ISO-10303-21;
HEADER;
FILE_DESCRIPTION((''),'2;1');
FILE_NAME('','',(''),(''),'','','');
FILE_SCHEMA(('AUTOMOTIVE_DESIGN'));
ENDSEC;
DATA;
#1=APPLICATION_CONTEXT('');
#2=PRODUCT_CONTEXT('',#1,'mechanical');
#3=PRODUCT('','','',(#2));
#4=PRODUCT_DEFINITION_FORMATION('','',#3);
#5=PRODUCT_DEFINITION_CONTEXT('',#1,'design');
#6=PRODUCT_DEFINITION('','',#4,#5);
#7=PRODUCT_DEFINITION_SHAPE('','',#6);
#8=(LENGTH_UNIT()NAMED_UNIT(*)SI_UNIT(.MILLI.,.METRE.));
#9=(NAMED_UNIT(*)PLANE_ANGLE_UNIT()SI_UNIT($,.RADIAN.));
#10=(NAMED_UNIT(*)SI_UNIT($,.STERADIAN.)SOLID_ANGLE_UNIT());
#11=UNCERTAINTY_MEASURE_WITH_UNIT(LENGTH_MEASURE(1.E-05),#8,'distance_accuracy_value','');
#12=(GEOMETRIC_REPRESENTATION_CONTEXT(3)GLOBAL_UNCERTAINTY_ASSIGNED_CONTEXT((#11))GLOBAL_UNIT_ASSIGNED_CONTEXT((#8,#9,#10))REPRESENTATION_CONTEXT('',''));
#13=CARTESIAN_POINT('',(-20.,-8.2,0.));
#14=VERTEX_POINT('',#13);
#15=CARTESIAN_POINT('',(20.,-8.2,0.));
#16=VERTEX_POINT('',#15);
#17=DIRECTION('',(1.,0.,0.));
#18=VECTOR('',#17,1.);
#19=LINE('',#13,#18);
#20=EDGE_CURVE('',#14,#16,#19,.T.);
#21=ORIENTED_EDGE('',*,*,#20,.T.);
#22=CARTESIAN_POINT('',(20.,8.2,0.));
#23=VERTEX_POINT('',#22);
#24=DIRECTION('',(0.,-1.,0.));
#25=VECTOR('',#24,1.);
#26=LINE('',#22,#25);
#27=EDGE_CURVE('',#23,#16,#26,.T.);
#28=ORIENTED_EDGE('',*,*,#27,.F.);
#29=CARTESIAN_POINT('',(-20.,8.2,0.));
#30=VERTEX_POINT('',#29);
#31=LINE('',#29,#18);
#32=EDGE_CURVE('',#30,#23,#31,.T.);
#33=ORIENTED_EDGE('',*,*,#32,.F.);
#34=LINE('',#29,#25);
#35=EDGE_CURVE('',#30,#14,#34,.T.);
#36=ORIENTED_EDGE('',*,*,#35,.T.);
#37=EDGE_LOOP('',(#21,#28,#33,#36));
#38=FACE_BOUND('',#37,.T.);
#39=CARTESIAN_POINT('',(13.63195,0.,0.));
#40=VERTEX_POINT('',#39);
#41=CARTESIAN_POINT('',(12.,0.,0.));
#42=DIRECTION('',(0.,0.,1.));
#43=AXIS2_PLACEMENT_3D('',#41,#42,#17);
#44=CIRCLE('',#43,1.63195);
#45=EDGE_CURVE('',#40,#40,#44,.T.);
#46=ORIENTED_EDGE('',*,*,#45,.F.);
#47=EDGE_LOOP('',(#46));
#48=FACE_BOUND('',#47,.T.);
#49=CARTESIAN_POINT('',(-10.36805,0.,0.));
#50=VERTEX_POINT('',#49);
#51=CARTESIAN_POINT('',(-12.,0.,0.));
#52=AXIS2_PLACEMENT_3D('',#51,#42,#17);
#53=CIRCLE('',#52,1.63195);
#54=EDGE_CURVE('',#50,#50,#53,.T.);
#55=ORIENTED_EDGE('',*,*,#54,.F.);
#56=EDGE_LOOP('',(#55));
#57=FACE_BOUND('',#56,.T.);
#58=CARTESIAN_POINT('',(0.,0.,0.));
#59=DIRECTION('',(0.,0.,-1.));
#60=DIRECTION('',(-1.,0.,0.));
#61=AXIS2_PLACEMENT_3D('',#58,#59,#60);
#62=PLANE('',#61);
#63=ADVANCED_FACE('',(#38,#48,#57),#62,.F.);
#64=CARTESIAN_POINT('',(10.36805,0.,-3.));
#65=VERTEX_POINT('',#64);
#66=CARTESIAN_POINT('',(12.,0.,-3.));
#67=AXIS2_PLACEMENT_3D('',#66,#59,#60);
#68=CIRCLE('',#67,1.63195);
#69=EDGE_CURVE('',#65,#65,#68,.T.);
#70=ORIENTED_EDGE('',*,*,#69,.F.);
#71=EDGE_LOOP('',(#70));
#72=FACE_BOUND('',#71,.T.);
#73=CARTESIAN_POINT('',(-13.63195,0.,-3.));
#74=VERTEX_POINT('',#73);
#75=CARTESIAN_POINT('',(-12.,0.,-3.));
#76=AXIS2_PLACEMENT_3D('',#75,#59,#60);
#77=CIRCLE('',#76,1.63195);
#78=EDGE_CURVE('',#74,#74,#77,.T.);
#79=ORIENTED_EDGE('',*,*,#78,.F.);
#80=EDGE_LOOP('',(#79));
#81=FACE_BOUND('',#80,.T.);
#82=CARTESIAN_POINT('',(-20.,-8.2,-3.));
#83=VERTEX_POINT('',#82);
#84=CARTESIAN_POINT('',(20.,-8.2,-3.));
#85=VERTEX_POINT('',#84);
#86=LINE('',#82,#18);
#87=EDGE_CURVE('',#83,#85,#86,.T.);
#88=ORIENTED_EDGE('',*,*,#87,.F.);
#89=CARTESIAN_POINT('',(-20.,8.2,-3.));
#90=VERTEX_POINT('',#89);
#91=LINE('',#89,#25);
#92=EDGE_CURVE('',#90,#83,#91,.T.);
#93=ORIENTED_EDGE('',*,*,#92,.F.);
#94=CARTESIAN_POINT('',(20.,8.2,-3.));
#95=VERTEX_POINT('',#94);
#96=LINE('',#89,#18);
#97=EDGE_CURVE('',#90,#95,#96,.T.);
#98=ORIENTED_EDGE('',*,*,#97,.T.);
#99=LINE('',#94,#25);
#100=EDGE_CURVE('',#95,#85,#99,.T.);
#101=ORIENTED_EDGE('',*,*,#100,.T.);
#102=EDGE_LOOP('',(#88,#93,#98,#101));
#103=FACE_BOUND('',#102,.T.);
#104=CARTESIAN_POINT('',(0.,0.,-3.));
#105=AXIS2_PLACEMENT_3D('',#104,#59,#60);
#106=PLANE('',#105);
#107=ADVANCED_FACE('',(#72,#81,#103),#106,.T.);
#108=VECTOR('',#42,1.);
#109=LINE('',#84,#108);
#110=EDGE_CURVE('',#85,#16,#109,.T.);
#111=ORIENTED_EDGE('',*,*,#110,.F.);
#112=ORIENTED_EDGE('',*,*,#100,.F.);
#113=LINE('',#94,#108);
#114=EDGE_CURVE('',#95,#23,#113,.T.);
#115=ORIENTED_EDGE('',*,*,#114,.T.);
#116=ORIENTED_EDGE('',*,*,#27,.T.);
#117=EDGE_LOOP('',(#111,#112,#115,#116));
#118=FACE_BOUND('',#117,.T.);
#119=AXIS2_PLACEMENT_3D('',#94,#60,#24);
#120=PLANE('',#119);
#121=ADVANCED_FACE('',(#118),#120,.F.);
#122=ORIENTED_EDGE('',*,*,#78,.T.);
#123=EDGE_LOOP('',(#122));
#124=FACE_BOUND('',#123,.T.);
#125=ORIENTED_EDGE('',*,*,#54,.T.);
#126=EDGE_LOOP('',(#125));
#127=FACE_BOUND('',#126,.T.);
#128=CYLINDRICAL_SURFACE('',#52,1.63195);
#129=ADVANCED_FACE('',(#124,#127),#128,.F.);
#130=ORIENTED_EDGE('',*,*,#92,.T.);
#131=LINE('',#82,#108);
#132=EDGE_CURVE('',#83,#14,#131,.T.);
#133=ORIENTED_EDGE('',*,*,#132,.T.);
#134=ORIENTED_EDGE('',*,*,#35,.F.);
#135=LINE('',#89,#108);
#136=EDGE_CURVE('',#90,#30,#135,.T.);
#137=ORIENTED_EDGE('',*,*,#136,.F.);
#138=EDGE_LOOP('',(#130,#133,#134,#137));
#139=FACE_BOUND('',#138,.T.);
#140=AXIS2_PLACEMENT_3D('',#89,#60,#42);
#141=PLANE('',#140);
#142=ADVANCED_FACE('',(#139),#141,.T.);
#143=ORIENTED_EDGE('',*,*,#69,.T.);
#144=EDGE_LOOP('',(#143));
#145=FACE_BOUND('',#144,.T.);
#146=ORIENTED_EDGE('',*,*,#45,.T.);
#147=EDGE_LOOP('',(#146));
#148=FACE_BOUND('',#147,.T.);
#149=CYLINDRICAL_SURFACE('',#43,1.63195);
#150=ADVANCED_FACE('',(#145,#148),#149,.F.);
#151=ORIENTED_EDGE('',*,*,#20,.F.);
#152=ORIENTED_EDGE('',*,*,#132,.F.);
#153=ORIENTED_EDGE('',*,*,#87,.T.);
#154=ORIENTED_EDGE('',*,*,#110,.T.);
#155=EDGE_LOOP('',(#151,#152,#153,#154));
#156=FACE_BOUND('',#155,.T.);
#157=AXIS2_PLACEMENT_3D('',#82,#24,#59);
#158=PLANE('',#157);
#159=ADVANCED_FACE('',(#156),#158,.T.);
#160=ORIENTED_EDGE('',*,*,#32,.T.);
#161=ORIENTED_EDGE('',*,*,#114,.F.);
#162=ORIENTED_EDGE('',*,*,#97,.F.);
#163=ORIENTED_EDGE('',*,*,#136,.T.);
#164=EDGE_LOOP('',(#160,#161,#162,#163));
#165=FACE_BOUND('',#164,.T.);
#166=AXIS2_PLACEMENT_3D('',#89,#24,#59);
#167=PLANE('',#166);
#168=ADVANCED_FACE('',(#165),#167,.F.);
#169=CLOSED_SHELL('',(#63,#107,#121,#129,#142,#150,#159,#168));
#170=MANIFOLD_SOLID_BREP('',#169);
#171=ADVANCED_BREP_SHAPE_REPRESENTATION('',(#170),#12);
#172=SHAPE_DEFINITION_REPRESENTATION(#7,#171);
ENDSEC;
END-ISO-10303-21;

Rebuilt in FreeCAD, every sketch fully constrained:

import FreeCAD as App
import Part
import Sketcher
Q = App.Units.Quantity

doc = App.newDocument("Part")
body = doc.addObject("PartDesign::Body", "Body")

# Sketch on XY plane
sketch1 = body.newObject("Sketcher::SketchObject", "Sketch")
sketch1.AttachmentSupport = (doc.getObject("XY_Plane"), [""])
sketch1.MapMode = "FlatFace"
sketch1.addGeometry(Part.LineSegment(App.Vector(-20, 8.2, 0), App.Vector(-20, -8.2, 0)), False)
sketch1.addGeometry(Part.LineSegment(App.Vector(-20, -8.2, 0), App.Vector(20, -8.2, 0)), False)
sketch1.addGeometry(Part.LineSegment(App.Vector(20, -8.2, 0), App.Vector(20, 8.2, 0)), False)
sketch1.addGeometry(Part.LineSegment(App.Vector(20, 8.2, 0), App.Vector(-20, 8.2, 0)), False)
sketch1.addConstraint(Sketcher.Constraint("Coincident", 0, 2, 1, 1))
sketch1.addConstraint(Sketcher.Constraint("Coincident", 1, 2, 2, 1))
sketch1.addConstraint(Sketcher.Constraint("Coincident", 2, 2, 3, 1))
sketch1.addConstraint(Sketcher.Constraint("Coincident", 3, 2, 0, 1))
sketch1.addConstraint(Sketcher.Constraint("Vertical", 0))
sketch1.addConstraint(Sketcher.Constraint("Horizontal", 1))
sketch1.addConstraint(Sketcher.Constraint("Vertical", 2))
sketch1.addConstraint(Sketcher.Constraint("Horizontal", 3))
sketch1.addConstraint(Sketcher.Constraint("Symmetric", 0, 2, 2, 2, -1, 1))
sketch1.addConstraint(Sketcher.Constraint("DistanceX", 1, 1, 1, 2, Q("40 mm")))
sketch1.addConstraint(Sketcher.Constraint("DistanceY", 0, 2, 0, 1, Q("16.4 mm")))
pad1 = body.newObject("PartDesign::Pad", "Pad")
pad1.Profile = sketch1
pad1.Length = 3
pad1.Reversed = True

# Sketch on XY plane
sketch2 = body.newObject("Sketcher::SketchObject", "Sketch001")
sketch2.AttachmentSupport = (doc.getObject("XY_Plane"), [""])
sketch2.MapMode = "FlatFace"
sketch2.addGeometry(Part.Circle(App.Vector(-12, 0, 0), App.Vector(0, 0, 1), 1.63195), False)
sketch2.addGeometry(Part.Circle(App.Vector(12, 0, 0), App.Vector(0, 0, 1), 1.63195), False)
sketch2.addConstraint(Sketcher.Constraint("Equal", 0, 1))
sketch2.addConstraint(Sketcher.Constraint("Symmetric", 0, 3, 1, 3, -1, 1))
sketch2.addConstraint(Sketcher.Constraint("PointOnObject", 0, 3, -1))
sketch2.addConstraint(Sketcher.Constraint("DistanceX", 0, 3, -1, 1, Q("12 mm")))
sketch2.addConstraint(Sketcher.Constraint("Diameter", 0, Q("3.2639 mm")))
doc.recompute()
hole = body.newObject("PartDesign::Hole", "Hole")
hole.Profile = sketch2
hole.ThreadType = "None"
hole.Diameter = 3.2639
hole.DepthType = "Dimension"
hole.Depth = 10
hole.DrillPoint = "Angled"
hole.DrillPointAngle = 118

doc.recompute()
